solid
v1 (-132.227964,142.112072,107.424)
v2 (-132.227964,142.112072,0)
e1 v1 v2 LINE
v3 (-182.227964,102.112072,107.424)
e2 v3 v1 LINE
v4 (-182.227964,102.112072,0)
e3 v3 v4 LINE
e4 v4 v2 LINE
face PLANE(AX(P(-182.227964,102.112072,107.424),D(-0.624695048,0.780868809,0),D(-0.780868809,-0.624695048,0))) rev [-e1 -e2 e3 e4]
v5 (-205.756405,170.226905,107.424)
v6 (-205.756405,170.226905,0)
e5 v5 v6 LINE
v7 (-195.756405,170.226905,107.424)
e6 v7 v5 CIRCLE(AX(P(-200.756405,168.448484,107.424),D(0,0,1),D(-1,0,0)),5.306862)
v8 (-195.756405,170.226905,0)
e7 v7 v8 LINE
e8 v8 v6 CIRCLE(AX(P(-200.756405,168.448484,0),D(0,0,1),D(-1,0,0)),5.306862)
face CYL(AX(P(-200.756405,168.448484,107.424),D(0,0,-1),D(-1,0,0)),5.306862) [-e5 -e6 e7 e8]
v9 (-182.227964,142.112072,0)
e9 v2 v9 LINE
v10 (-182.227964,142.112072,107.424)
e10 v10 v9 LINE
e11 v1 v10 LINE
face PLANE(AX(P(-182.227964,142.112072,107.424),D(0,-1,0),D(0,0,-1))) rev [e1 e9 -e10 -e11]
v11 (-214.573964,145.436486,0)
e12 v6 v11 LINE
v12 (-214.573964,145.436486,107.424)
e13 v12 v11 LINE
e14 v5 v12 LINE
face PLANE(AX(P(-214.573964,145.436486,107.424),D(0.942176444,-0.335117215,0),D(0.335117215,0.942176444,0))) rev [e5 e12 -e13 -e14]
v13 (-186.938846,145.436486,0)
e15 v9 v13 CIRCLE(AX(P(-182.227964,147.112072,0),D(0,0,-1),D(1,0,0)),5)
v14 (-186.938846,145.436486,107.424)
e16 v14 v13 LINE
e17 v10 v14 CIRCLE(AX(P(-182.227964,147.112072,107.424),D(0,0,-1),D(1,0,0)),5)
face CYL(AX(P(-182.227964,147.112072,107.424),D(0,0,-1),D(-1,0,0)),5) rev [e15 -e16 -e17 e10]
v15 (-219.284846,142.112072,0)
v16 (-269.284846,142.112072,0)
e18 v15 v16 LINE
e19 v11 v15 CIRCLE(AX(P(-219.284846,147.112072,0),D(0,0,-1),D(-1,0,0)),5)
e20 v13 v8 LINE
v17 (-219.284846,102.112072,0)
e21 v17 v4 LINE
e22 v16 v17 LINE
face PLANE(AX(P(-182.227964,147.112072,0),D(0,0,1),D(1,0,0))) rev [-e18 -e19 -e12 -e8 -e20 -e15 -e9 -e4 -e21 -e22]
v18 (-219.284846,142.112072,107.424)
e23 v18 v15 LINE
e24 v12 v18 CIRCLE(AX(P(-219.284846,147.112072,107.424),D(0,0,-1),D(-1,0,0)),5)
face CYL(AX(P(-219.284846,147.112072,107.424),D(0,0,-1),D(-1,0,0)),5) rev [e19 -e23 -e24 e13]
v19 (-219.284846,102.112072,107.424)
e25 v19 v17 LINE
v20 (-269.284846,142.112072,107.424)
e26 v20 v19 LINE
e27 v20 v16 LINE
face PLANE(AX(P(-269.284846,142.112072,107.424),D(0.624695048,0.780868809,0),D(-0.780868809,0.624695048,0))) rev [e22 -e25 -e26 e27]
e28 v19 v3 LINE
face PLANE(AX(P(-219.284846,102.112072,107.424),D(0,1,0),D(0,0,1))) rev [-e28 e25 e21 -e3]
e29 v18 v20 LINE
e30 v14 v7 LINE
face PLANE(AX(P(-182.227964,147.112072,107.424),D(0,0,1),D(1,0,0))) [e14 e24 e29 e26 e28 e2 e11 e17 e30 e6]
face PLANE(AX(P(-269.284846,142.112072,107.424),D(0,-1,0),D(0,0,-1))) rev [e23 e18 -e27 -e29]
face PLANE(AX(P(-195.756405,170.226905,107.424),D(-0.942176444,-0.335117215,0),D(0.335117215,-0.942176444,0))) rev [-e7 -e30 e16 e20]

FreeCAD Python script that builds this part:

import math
import FreeCAD as App
import Part
import Sketcher

V = App.Vector
Q = App.Units.Quantity

doc = App.newDocument("Part")
body = doc.addObject("PartDesign::Body", "Body")

sketch1 = body.newObject("Sketcher::SketchObject", "Sketch")
sketch1.AttachmentSupport = (doc.getObject("XY_Plane"), [""])
sketch1.MapMode = "FlatFace"
sketch1.addGeometry(Part.LineSegment(V(-219, 142, 0), V(-269, 142, 0)), False)
sketch1.addGeometry(Part.LineSegment(V(-269, 142, 0), V(-219, 102, 0)), False)
sketch1.addGeometry(Part.LineSegment(V(-219, 102, 0), V(-182, 102, 0)), False)
sketch1.addGeometry(Part.LineSegment(V(-182, 102, 0), V(-132, 142, 0)), False)
sketch1.addGeometry(Part.LineSegment(V(-132, 142, 0), V(-182, 142, 0)), False)
sketch1.addGeometry(Part.ArcOfCircle(Part.Circle(V(-182, 147, 0), V(0, 0, 1), 5), math.radians(-160), math.radians(-90)), False)
sketch1.addGeometry(Part.LineSegment(V(-187, 145, 0), V(-196, 170, 0)), False)
sketch1.addGeometry(Part.ArcOfCircle(Part.Circle(V(-201, 168, 0), V(0, 0, 1), 5), math.radians(20), math.radians(160)), False)
sketch1.addGeometry(Part.LineSegment(V(-206, 170, 0), V(-215, 145, 0)), False)
sketch1.addGeometry(Part.ArcOfCircle(Part.Circle(V(-219, 147, 0), V(0, 0, 1), 5), math.radians(-90), math.radians(-20)), False)
sketch1.addConstraint(Sketcher.Constraint("Coincident", 0, 2, 1, 1))
sketch1.addConstraint(Sketcher.Constraint("Coincident", 1, 2, 2, 1))
sketch1.addConstraint(Sketcher.Constraint("Coincident", 2, 2, 3, 1))
sketch1.addConstraint(Sketcher.Constraint("Coincident", 3, 2, 4, 1))
sketch1.addConstraint(Sketcher.Constraint("Tangent", 4, 2, 5, 2))
sketch1.addConstraint(Sketcher.Constraint("Tangent", 5, 1, 6, 1))
sketch1.addConstraint(Sketcher.Constraint("Tangent", 6, 2, 7, 1))
sketch1.addConstraint(Sketcher.Constraint("Tangent", 7, 2, 8, 1))
sketch1.addConstraint(Sketcher.Constraint("Tangent", 8, 2, 9, 2))
sketch1.addConstraint(Sketcher.Constraint("Tangent", 9, 1, 0, 1))
sketch1.addConstraint(Sketcher.Constraint("Horizontal", 0))
sketch1.addConstraint(Sketcher.Constraint("Horizontal", 2))
sketch1.addConstraint(Sketcher.Constraint("Horizontal", 4))
sketch1.addConstraint(Sketcher.Constraint("Equal", 5, 9))
sketch1.addConstraint(Sketcher.Constraint("Horizontal", 5, 3, 9, 3))
sketch1.addConstraint(Sketcher.Constraint("Horizontal", 6, 2, 7, 2))
sketch1.addConstraint(Sketcher.Constraint("Vertical", 9, 3, 1, 2))
sketch1.addConstraint(Sketcher.Constraint("Vertical", 5, 3, 2, 2))
sketch1.addConstraint(Sketcher.Constraint("Equal", 0, 4))
sketch1.addConstraint(Sketcher.Constraint("Radius", 5, Q("5 mm")))
sketch1.addConstraint(Sketcher.Constraint("DistanceX", 0, 2, 0, 1, Q("50 mm")))
sketch1.addConstraint(Sketcher.Constraint("DistanceY", 1, 2, 9, 3, Q("45 mm")))
sketch1.addConstraint(Sketcher.Constraint("DistanceX", 7, 3, 6, 2, Q("5 mm")))
sketch1.addConstraint(Sketcher.Constraint("Radius", 7, Q("5.306862 mm")))
sketch1.addConstraint(Sketcher.Constraint("DistanceY", 5, 1, 7, 3, Q("23.011998 mm")))
sketch1.addConstraint(Sketcher.Constraint("DistanceX", 5, 3, -1, 1, Q("182.227964 mm")))
sketch1.addConstraint(Sketcher.Constraint("DistanceY", -1, 1, 5, 3, Q("147.112072 mm")))
pad1 = body.newObject("PartDesign::Pad", "Pad")
pad1.Profile = sketch1
pad1.Length = 107.424

doc.recompute()
